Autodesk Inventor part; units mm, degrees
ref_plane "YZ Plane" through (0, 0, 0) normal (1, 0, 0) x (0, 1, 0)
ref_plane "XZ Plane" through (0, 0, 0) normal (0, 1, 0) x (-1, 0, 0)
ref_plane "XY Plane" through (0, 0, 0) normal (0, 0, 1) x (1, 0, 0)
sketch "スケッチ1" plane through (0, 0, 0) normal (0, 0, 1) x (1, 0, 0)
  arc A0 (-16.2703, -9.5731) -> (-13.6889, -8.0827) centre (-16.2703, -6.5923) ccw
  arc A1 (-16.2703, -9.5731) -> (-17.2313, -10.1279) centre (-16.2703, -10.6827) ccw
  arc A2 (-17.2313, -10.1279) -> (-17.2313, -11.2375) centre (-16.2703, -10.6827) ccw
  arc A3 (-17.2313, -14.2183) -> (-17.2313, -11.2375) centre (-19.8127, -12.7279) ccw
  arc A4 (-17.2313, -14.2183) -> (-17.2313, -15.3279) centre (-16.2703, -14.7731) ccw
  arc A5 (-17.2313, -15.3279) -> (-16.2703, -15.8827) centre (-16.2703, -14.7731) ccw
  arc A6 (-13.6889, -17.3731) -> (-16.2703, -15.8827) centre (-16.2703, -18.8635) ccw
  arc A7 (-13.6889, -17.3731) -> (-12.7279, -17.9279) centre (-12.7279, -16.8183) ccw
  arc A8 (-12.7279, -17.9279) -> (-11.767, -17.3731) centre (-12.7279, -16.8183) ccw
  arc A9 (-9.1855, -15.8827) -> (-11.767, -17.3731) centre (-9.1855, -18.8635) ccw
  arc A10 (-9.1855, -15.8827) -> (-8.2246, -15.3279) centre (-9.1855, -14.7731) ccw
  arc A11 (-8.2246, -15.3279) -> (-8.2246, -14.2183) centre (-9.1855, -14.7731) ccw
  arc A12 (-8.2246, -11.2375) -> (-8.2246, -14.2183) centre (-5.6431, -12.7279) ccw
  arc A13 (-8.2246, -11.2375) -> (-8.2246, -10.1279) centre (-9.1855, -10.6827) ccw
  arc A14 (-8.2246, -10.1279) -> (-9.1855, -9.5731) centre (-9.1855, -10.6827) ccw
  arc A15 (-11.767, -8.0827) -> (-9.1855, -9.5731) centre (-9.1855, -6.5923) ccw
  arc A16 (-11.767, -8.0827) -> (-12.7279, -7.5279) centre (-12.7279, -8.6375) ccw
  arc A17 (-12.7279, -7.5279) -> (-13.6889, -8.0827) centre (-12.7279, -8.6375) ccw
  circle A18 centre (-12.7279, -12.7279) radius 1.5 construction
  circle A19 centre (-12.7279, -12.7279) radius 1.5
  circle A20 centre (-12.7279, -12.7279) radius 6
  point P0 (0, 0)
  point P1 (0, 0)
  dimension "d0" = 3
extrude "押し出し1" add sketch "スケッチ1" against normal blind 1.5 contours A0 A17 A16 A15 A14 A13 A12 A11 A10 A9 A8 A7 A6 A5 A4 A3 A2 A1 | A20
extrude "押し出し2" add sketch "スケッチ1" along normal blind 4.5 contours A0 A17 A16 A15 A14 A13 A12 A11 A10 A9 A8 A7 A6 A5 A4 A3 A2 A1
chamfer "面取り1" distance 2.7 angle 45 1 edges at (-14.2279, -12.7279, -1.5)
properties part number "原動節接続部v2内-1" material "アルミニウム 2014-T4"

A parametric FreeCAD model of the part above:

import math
import FreeCAD as App
import Part
import Sketcher

V = App.Vector
Q = App.Units.Quantity


def edges_at(feature, points):
    """Names of the edges that pass closest to the given points."""
    edges = feature.Shape.Edges
    near = lambda p: min(range(len(edges)), key=lambda i: edges[i].distToShape(Part.Vertex(*p))[0])
    return sorted({f"Edge{near(p) + 1}" for p in points})

doc = App.newDocument("Part")
body = doc.addObject("PartDesign::Body", "Body")

sketch1 = body.newObject("Sketcher::SketchObject", "Sketch")
sketch1.AttachmentSupport = (doc.getObject("XY_Plane"), [""])
sketch1.MapMode = "FlatFace"
sketch1.addGeometry(Part.Circle(V(-12.7, -12.7, 0), V(0, 0, 1), 6), False)
sketch1.addGeometry(Part.Circle(V(-12.7, -12.7, 0), V(0, 0, 1), 1.5), False)
sketch1.addConstraint(Sketcher.Constraint("Coincident", 1, 3, 0, 3))
sketch1.addConstraint(Sketcher.Constraint("Diameter", 1, Q("3 mm")))
sketch1.addConstraint(Sketcher.Constraint("Diameter", 0, Q("12 mm")))
sketch1.addConstraint(Sketcher.Constraint("DistanceX", 0, 3, -1, 1, Q("12.728 mm")))
sketch1.addConstraint(Sketcher.Constraint("DistanceY", 0, 3, -1, 1, Q("12.728 mm")))
pad1 = body.newObject("PartDesign::Pad", "Pad")
pad1.Profile = sketch1
pad1.Length = 1.5
pad1.Reversed = True

sketch2 = body.newObject("Sketcher::SketchObject", "Sketch001")
sketch2.AttachmentSupport = (doc.getObject("XY_Plane"), [""])
sketch2.MapMode = "FlatFace"
sketch2.addGeometry(Part.ArcOfCircle(Part.Circle(V(-16.3, -6.6, 0), V(0, 0, 1), 3), math.radians(-90), math.radians(-30)), False)
sketch2.addGeometry(Part.ArcOfCircle(Part.Circle(V(-16.3, -10.7, 0), V(0, 0, 1), 1.1), math.radians(90), math.radians(150)), False)
sketch2.addGeometry(Part.ArcOfCircle(Part.Circle(V(-16.3, -10.7, 0), V(0, 0, 1), 1.1), math.radians(150), math.radians(210)), False)
sketch2.addGeometry(Part.ArcOfCircle(Part.Circle(V(-19.8, -12.7, 0), V(0, 0, 1), 3), math.radians(-30), math.radians(30)), False)
sketch2.addGeometry(Part.ArcOfCircle(Part.Circle(V(-16.3, -14.8, 0), V(0, 0, 1), 1.1), math.radians(150), math.radians(210)), False)
sketch2.addGeometry(Part.ArcOfCircle(Part.Circle(V(-16.3, -14.8, 0), V(0, 0, 1), 1.1), math.radians(-150), math.radians(-90)), False)
sketch2.addGeometry(Part.ArcOfCircle(Part.Circle(V(-16.3, -18.9, 0), V(0, 0, 1), 3), math.radians(30), math.radians(90)), False)
sketch2.addGeometry(Part.ArcOfCircle(Part.Circle(V(-12.7, -16.8, 0), V(0, 0, 1), 1.1), math.radians(-150), math.radians(-90)), False)
sketch2.addGeometry(Part.ArcOfCircle(Part.Circle(V(-12.7, -16.8, 0), V(0, 0, 1), 1.1), math.radians(-90), math.radians(-30)), False)
sketch2.addGeometry(Part.ArcOfCircle(Part.Circle(V(-9.2, -18.9, 0), V(0, 0, 1), 3), math.radians(90), math.radians(150)), False)
sketch2.addGeometry(Part.ArcOfCircle(Part.Circle(V(-9.2, -14.8, 0), V(0, 0, 1), 1.1), math.radians(-90), math.radians(-30)), False)
sketch2.addGeometry(Part.ArcOfCircle(Part.Circle(V(-9.2, -14.8, 0), V(0, 0, 1), 1.1), math.radians(-30), math.radians(30)), False)
sketch2.addGeometry(Part.ArcOfCircle(Part.Circle(V(-5.6, -12.7, 0), V(0, 0, 1), 3), math.radians(150), math.radians(210)), False)
sketch2.addGeometry(Part.ArcOfCircle(Part.Circle(V(-9.2, -10.7, 0), V(0, 0, 1), 1.1), math.radians(-30), math.radians(30)), False)
sketch2.addGeometry(Part.ArcOfCircle(Part.Circle(V(-9.2, -10.7, 0), V(0, 0, 1), 1.1), math.radians(30), math.radians(90)), False)
sketch2.addGeometry(Part.ArcOfCircle(Part.Circle(V(-9.2, -6.6, 0), V(0, 0, 1), 3), math.radians(-150), math.radians(-90)), False)
sketch2.addGeometry(Part.ArcOfCircle(Part.Circle(V(-12.7, -8.6, 0), V(0, 0, 1), 1.1), math.radians(30), math.radians(90)), False)
sketch2.addGeometry(Part.ArcOfCircle(Part.Circle(V(-12.7, -8.6, 0), V(0, 0, 1), 1.1), math.radians(90), math.radians(150)), False)
sketch2.addGeometry(Part.Circle(V(-12.7, -12.7, 0), V(0, 0, 1), 1.5), False)
sketch2.addConstraint(Sketcher.Constraint("Tangent", 0, 1, 1, 1))
sketch2.addConstraint(Sketcher.Constraint("Tangent", 1, 2, 2, 1))
sketch2.addConstraint(Sketcher.Constraint("Tangent", 2, 2, 3, 2))
sketch2.addConstraint(Sketcher.Constraint("Tangent", 3, 1, 4, 1))
sketch2.addConstraint(Sketcher.Constraint("Tangent", 4, 2, 5, 1))
sketch2.addConstraint(Sketcher.Constraint("Tangent", 5, 2, 6, 2))
sketch2.addConstraint(Sketcher.Constraint("Tangent", 6, 1, 7, 1))
sketch2.addConstraint(Sketcher.Constraint("Tangent", 7, 2, 8, 1))
sketch2.addConstraint(Sketcher.Constraint("Tangent", 8, 2, 9, 2))
sketch2.addConstraint(Sketcher.Constraint("Tangent", 9, 1, 10, 1))
sketch2.addConstraint(Sketcher.Constraint("Tangent", 10, 2, 11, 1))
sketch2.addConstraint(Sketcher.Constraint("Tangent", 11, 2, 12, 2))
sketch2.addConstraint(Sketcher.Constraint("Tangent", 12, 1, 13, 1))
sketch2.addConstraint(Sketcher.Constraint("Tangent", 13, 2, 14, 1))
sketch2.addConstraint(Sketcher.Constraint("Tangent", 14, 2, 15, 2))
sketch2.addConstraint(Sketcher.Constraint("Tangent", 15, 1, 16, 1))
sketch2.addConstraint(Sketcher.Constraint("Tangent", 16, 2, 17, 1))
sketch2.addConstraint(Sketcher.Constraint("Tangent", 17, 2, 0, 2))
sketch2.addConstraint(Sketcher.Constraint("Equal", 1, 2))
sketch2.addConstraint(Sketcher.Constraint("Equal", 0, 3))
sketch2.addConstraint(Sketcher.Constraint("Equal", 2, 4))
sketch2.addConstraint(Sketcher.Constraint("Equal", 4, 5))
sketch2.addConstraint(Sketcher.Constraint("Equal", 3, 6))
sketch2.addConstraint(Sketcher.Constraint("Equal", 5, 7))
sketch2.addConstraint(Sketcher.Constraint("Equal", 7, 8))
sketch2.addConstraint(Sketcher.Constraint("Equal", 6, 9))
sketch2.addConstraint(Sketcher.Constraint("Equal", 8, 10))
sketch2.addConstraint(Sketcher.Constraint("Equal", 10, 11))
sketch2.addConstraint(Sketcher.Constraint("Equal", 9, 12))
sketch2.addConstraint(Sketcher.Constraint("Equal", 11, 13))
sketch2.addConstraint(Sketcher.Constraint("Equal", 13, 14))
sketch2.addConstraint(Sketcher.Constraint("Equal", 12, 15))
sketch2.addConstraint(Sketcher.Constraint("Equal", 14, 16))
sketch2.addConstraint(Sketcher.Constraint("Equal", 16, 17))
sketch2.addConstraint(Sketcher.Constraint("Horizontal", 6, 3, 9, 3))
sketch2.addConstraint(Sketcher.Constraint("Horizontal", 3, 3, 12, 3))
sketch2.addConstraint(Sketcher.Constraint("Horizontal", 2, 3, 13, 3))
sketch2.addConstraint(Sketcher.Constraint("Horizontal", 12, 3, 18, 3))
sketch2.addConstraint(Sketcher.Constraint("Horizontal", 4, 2, 10, 2))
sketch2.addConstraint(Sketcher.Constraint("Horizontal", 1, 2, 13, 2))
sketch2.addConstraint(Sketcher.Constraint("Vertical", 0, 3, 1, 3))
sketch2.addConstraint(Sketcher.Constraint("Vertical", 2, 3, 4, 3))
sketch2.addConstraint(Sketcher.Constraint("Vertical", 5, 3, 6, 3))
sketch2.addConstraint(Sketcher.Constraint("Vertical", 9, 3, 10, 3))
sketch2.addConstraint(Sketcher.Constraint("Vertical", 14, 3, 15, 3))
sketch2.addConstraint(Sketcher.Constraint("Vertical", 17, 3, 18, 3))
sketch2.addConstraint(Sketcher.Constraint("Vertical", 1, 2, 2, 2))
sketch2.addConstraint(Sketcher.Constraint("Vertical", 3, 1, 4, 2))
sketch2.addConstraint(Sketcher.Constraint("Vertical", 18, 3, 7, 2))
sketch2.addConstraint(Sketcher.Constraint("Vertical", 7, 2, 16, 2))
sketch2.addConstraint(Sketcher.Constraint("Diameter", 18, Q("3 mm")))
sketch2.addConstraint(Sketcher.Constraint("Radius", 0, Q("2.9808 mm")))
sketch2.addConstraint(Sketcher.Constraint("Radius", 1, Q("1.1097 mm")))
sketch2.addConstraint(Sketcher.Constraint("DistanceY", 3, 3, 1, 2, Q("2.6 mm")))
sketch2.addConstraint(Sketcher.Constraint("DistanceY", 6, 1, 4, 3, Q("2.6 mm")))
sketch2.addConstraint(Sketcher.Constraint("DistanceY", 3, 3, -1, 1, Q("12.728 mm")))
sketch2.addConstraint(Sketcher.Constraint("DistanceX", 7, 3, -1, 1, Q("12.728 mm")))
pad2 = body.newObject("PartDesign::Pad", "Pad001")
pad2.Profile = sketch2
pad2.Length = 4.5
doc.recompute()

chamfer = body.newObject("PartDesign::Chamfer", "Chamfer")
chamfer.Base = (pad2, edges_at(pad2, [(-14.228, -12.728, -1.5)]))
chamfer.Size = 2.7

doc.recompute()
